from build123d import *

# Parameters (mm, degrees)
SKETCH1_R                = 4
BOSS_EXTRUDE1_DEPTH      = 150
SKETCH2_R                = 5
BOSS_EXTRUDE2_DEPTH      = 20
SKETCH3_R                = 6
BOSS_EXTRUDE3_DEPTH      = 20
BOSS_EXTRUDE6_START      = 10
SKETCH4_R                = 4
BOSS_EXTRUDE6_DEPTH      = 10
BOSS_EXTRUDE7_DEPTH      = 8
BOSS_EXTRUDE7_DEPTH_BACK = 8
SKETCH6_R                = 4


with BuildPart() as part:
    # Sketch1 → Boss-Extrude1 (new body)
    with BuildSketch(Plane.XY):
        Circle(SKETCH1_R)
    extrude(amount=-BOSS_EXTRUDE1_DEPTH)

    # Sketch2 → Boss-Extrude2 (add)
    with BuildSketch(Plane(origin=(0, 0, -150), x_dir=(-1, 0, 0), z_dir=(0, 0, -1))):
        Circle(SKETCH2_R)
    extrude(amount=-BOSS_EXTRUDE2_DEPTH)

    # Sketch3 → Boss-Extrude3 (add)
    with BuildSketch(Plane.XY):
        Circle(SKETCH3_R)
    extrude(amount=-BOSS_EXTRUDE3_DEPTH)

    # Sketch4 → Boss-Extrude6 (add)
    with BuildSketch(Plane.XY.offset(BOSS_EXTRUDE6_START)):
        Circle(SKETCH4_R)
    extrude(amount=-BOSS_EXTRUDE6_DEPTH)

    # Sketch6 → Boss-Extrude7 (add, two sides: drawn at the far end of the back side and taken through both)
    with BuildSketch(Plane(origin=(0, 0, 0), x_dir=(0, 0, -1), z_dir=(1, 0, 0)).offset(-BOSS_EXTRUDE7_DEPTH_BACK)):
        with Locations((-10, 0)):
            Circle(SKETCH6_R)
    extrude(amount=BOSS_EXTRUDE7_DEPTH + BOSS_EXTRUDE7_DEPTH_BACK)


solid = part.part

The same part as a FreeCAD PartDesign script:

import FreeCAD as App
import Part
import Sketcher
from FreeCAD import Vector
Q = App.Units.Quantity

doc = App.newDocument("Part")
body = doc.addObject("PartDesign::Body", "Body")

# Sketch on XY plane
sketch1 = doc.addObject("Sketcher::SketchObject", "Sketch")
body.addObject(sketch1)
sketch1.AttachmentSupport = (doc.XY_Plane, [""])
sketch1.MapMode = "FlatFace"
sketch1.addGeometry(Part.Circle(Vector(0, 0, 0), Vector(0, 0, 1), 4), False)
sketch1.addConstraint([
    Sketcher.Constraint("Coincident", 0, 3, -1, 1),
    Sketcher.Constraint("Diameter", 0, Q("8 mm")),
])
pad1 = doc.addObject("PartDesign::Pad", "Pad")
body.addObject(pad1)
pad1.Profile = sketch1
pad1.Length = 150
pad1.Reversed = True

# Sketch on XY plane
sketch2 = doc.addObject("Sketcher::SketchObject", "Sketch001")
body.addObject(sketch2)
sketch2.AttachmentSupport = (doc.XY_Plane, [""])
sketch2.MapMode = "FlatFace"
sketch2.AttachmentOffset = App.Placement(Vector(0, 0, -150), App.Rotation())
sketch2.addGeometry(Part.Circle(Vector(0, 0, 0), Vector(0, 0, 1), 5), False)
sketch2.addConstraint([
    Sketcher.Constraint("Coincident", 0, 3, -1, 1),
    Sketcher.Constraint("Diameter", 0, Q("10 mm")),
])
pad2 = doc.addObject("PartDesign::Pad", "Pad001")
body.addObject(pad2)
pad2.Profile = sketch2
pad2.Length = 20

# Sketch on XY plane
sketch3 = doc.addObject("Sketcher::SketchObject", "Sketch002")
body.addObject(sketch3)
sketch3.AttachmentSupport = (doc.XY_Plane, [""])
sketch3.MapMode = "FlatFace"
sketch3.addGeometry(Part.Circle(Vector(0, 0, 0), Vector(0, 0, 1), 6), False)
sketch3.addConstraint([
    Sketcher.Constraint("Coincident", 0, 3, -1, 1),
    Sketcher.Constraint("Diameter", 0, Q("12 mm")),
])
pad3 = doc.addObject("PartDesign::Pad", "Pad002")
body.addObject(pad3)
pad3.Profile = sketch3
pad3.Length = 20
pad3.Reversed = True

# Sketch on XY plane
sketch4 = doc.addObject("Sketcher::SketchObject", "Sketch003")
body.addObject(sketch4)
sketch4.AttachmentSupport = (doc.XY_Plane, [""])
sketch4.MapMode = "FlatFace"
sketch4.AttachmentOffset = App.Placement(Vector(0, 0, 10), App.Rotation())
sketch4.addGeometry(Part.Circle(Vector(0, 0, 0), Vector(0, 0, 1), 4), False)
sketch4.addConstraint([
    Sketcher.Constraint("Coincident", 0, 3, -1, 1),
    Sketcher.Constraint("Diameter", 0, Q("8 mm")),
])
pad4 = doc.addObject("PartDesign::Pad", "Pad003")
body.addObject(pad4)
pad4.Profile = sketch4
pad4.Length = 10
pad4.Reversed = True

# Sketch on YZ plane
sketch5 = doc.addObject("Sketcher::SketchObject", "Sketch004")
body.addObject(sketch5)
sketch5.AttachmentSupport = (doc.YZ_Plane, [""])
sketch5.MapMode = "FlatFace"
sketch5.addGeometry(Part.Circle(Vector(0, 10, 0), Vector(0, 0, 1), 4), False)
sketch5.addConstraint([
    Sketcher.Constraint("PointOnObject", 0, 3, -2),
    Sketcher.Constraint("Diameter", 0, Q("8 mm")),
    Sketcher.Constraint("DistanceY", -1, 1, 0, 3, Q("10 mm")),
])
pad5 = doc.addObject("PartDesign::Pad", "Pad004")
body.addObject(pad5)
pad5.Profile = sketch5
pad5.Type = "TwoLengths"
pad5.Length = 8
pad5.Length2 = 8

doc.recompute()
